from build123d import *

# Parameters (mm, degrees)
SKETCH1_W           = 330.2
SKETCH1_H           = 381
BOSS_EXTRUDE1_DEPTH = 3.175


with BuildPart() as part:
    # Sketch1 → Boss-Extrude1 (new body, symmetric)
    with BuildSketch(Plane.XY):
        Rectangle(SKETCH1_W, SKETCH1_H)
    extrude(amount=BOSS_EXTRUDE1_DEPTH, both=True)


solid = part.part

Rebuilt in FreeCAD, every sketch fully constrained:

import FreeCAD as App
import Part
import Sketcher

V = App.Vector
Q = App.Units.Quantity

doc = App.newDocument("Part")
body = doc.addObject("PartDesign::Body", "Body")

# Sketch on XY plane
sketch1 = doc.addObject("Sketcher::SketchObject", "Sketch")
body.addObject(sketch1)
sketch1.AttachmentSupport = (doc.XY_Plane, [""])
sketch1.MapMode = "FlatFace"
sketch1.addGeometry([
    Part.LineSegment(V(-165, 190, 0), V(-165, -190, 0)),
    Part.LineSegment(V(-165, -190, 0), V(165, -190, 0)),
    Part.LineSegment(V(165, -190, 0), V(165, 190, 0)),
    Part.LineSegment(V(165, 190, 0), V(-165, 190, 0)),
], False)
sketch1.addConstraint([
    Sketcher.Constraint("Coincident", 0, 2, 1, 1),
    Sketcher.Constraint("Coincident", 1, 2, 2, 1),
    Sketcher.Constraint("Coincident", 2, 2, 3, 1),
    Sketcher.Constraint("Coincident", 3, 2, 0, 1),
    Sketcher.Constraint("Vertical", 0),
    Sketcher.Constraint("Horizontal", 1),
    Sketcher.Constraint("Vertical", 2),
    Sketcher.Constraint("Horizontal", 3),
    Sketcher.Constraint("Symmetric", 0, 2, 2, 2, -1, 1),
    Sketcher.Constraint("DistanceX", 1, 1, 1, 2, Q("13 in")),
    Sketcher.Constraint("DistanceY", 0, 2, 0, 1, Q("15 in")),
])
pad1 = doc.addObject("PartDesign::Pad", "Pad")
body.addObject(pad1)
pad1.Profile = sketch1
pad1.Length = Q("0.25 in")
pad1.Midplane = True

doc.recompute()
